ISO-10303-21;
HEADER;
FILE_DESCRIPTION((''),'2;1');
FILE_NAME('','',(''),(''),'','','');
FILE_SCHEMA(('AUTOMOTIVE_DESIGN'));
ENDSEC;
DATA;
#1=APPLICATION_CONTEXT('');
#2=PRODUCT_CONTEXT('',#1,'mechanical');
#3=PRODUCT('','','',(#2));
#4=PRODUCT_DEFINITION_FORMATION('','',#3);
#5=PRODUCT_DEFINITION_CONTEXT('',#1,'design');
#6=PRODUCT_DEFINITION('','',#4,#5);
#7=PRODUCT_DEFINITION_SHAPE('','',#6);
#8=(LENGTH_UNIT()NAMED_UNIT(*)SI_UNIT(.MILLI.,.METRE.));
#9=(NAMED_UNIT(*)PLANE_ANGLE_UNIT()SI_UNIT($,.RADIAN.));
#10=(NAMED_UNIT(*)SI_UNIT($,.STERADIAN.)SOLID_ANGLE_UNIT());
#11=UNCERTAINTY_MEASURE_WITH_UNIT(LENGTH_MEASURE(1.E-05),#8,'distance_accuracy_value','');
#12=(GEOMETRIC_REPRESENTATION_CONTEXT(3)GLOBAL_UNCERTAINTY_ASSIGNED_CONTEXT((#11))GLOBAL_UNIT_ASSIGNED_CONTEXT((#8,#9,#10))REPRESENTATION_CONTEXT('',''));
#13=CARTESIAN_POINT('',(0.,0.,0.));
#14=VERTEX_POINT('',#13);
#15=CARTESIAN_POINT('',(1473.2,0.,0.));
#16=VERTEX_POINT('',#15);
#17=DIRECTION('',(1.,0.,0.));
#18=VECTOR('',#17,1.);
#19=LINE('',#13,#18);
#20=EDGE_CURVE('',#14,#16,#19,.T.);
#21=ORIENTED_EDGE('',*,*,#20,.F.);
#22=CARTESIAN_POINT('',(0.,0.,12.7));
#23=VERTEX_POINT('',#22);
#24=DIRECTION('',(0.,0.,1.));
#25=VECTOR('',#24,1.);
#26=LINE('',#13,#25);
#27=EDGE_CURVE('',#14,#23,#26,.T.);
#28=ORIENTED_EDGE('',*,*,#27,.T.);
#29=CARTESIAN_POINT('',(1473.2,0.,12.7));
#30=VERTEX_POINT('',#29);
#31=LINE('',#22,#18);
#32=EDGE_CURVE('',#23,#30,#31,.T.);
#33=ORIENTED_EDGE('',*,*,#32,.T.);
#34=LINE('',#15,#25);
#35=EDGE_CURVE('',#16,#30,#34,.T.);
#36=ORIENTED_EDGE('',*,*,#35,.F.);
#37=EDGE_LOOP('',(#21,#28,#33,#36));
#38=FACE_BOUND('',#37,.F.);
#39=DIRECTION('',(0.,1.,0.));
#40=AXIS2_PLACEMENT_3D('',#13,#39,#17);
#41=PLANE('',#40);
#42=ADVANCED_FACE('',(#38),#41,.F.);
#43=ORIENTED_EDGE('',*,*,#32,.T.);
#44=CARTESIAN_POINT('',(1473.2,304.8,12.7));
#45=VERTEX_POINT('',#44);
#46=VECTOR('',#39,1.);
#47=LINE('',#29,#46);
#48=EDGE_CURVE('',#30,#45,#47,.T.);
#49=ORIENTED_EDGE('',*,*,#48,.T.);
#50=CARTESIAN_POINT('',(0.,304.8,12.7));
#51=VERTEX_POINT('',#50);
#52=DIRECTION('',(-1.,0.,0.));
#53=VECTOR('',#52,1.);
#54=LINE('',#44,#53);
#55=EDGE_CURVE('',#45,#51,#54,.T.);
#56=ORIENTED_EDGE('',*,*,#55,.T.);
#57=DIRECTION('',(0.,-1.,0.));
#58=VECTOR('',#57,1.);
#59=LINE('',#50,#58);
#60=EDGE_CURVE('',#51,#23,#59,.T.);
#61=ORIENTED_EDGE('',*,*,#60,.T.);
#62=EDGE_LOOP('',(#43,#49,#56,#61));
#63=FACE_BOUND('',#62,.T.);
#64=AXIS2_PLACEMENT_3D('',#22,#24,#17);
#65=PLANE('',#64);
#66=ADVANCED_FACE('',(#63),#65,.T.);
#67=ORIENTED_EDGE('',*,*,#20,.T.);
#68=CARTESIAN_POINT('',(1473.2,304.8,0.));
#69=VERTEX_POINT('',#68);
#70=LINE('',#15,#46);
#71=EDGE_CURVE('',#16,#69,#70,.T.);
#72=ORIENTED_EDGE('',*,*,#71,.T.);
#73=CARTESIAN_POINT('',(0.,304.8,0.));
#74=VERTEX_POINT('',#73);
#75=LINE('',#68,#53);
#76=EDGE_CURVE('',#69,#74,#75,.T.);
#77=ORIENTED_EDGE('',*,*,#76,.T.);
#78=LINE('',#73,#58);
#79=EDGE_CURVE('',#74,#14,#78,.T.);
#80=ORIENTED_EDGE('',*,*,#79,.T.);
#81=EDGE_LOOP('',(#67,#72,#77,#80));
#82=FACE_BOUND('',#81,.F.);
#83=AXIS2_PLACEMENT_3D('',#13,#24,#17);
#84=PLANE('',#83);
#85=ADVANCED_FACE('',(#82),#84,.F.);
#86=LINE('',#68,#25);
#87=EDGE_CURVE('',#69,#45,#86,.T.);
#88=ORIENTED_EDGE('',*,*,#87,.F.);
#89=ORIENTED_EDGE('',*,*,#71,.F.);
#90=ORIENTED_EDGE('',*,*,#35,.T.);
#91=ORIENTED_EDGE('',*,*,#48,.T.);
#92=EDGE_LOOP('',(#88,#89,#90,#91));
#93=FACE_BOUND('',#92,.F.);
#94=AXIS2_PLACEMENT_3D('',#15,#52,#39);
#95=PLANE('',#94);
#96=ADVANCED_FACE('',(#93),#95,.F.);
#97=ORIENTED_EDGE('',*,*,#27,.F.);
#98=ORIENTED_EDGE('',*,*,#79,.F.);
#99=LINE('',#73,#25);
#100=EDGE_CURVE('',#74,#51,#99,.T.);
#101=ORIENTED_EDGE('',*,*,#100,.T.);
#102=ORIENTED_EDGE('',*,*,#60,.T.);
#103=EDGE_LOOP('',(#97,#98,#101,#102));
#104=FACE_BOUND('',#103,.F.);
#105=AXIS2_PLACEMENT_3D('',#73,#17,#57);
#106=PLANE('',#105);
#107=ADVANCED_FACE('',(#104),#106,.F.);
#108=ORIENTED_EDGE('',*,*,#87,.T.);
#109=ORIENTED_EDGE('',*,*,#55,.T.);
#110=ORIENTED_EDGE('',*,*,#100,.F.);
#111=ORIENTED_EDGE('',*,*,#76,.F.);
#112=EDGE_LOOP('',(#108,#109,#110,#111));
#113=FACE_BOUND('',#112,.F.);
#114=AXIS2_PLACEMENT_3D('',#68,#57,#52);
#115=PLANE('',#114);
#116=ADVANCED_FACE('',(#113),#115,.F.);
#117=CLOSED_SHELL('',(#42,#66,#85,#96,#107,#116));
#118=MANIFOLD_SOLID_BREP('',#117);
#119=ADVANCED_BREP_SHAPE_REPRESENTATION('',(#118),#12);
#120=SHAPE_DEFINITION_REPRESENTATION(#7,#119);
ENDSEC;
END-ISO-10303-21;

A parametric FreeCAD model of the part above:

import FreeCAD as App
import Part
import Sketcher
Q = App.Units.Quantity


def add_polygon(sketch, points):
    """Adds a closed chain of lines whose ends are joined by coincident constraints."""
    first, n = sketch.GeometryCount, len(points)
    for a, b in zip(points, points[1:] + points[:1]):
        sketch.addGeometry(Part.LineSegment(App.Vector(*a, 0), App.Vector(*b, 0)), False)
    for i in range(n):
        sketch.addConstraint(Sketcher.Constraint("Coincident", first + i, 2, first + (i + 1) % n, 1))

doc = App.newDocument("Part")
body = doc.addObject("PartDesign::Body", "Body")

sketch1 = body.newObject("Sketcher::SketchObject", "Sketch")
sketch1.AttachmentSupport = (doc.getObject("XY_Plane"), [""])
sketch1.MapMode = "FlatFace"
add_polygon(sketch1, [(0, 304.8), (0, 0), (1473.2, 0), (1473.2, 304.8)])
sketch1.addConstraint([
    Sketcher.Constraint("Vertical", 0),
    Sketcher.Constraint("Horizontal", 1),
    Sketcher.Constraint("Vertical", 2),
    Sketcher.Constraint("Horizontal", 3),
    Sketcher.Constraint("Coincident", 0, 2, -1, 1),
    Sketcher.Constraint("DistanceX", 1, 1, 1, 2, Q("58 in")),
    Sketcher.Constraint("DistanceY", 0, 2, 0, 1, Q("12 in")),
])
pad1 = body.newObject("PartDesign::Pad", "Pad")
pad1.Profile = sketch1
pad1.Length = Q("0.5 in")

doc.recompute()
